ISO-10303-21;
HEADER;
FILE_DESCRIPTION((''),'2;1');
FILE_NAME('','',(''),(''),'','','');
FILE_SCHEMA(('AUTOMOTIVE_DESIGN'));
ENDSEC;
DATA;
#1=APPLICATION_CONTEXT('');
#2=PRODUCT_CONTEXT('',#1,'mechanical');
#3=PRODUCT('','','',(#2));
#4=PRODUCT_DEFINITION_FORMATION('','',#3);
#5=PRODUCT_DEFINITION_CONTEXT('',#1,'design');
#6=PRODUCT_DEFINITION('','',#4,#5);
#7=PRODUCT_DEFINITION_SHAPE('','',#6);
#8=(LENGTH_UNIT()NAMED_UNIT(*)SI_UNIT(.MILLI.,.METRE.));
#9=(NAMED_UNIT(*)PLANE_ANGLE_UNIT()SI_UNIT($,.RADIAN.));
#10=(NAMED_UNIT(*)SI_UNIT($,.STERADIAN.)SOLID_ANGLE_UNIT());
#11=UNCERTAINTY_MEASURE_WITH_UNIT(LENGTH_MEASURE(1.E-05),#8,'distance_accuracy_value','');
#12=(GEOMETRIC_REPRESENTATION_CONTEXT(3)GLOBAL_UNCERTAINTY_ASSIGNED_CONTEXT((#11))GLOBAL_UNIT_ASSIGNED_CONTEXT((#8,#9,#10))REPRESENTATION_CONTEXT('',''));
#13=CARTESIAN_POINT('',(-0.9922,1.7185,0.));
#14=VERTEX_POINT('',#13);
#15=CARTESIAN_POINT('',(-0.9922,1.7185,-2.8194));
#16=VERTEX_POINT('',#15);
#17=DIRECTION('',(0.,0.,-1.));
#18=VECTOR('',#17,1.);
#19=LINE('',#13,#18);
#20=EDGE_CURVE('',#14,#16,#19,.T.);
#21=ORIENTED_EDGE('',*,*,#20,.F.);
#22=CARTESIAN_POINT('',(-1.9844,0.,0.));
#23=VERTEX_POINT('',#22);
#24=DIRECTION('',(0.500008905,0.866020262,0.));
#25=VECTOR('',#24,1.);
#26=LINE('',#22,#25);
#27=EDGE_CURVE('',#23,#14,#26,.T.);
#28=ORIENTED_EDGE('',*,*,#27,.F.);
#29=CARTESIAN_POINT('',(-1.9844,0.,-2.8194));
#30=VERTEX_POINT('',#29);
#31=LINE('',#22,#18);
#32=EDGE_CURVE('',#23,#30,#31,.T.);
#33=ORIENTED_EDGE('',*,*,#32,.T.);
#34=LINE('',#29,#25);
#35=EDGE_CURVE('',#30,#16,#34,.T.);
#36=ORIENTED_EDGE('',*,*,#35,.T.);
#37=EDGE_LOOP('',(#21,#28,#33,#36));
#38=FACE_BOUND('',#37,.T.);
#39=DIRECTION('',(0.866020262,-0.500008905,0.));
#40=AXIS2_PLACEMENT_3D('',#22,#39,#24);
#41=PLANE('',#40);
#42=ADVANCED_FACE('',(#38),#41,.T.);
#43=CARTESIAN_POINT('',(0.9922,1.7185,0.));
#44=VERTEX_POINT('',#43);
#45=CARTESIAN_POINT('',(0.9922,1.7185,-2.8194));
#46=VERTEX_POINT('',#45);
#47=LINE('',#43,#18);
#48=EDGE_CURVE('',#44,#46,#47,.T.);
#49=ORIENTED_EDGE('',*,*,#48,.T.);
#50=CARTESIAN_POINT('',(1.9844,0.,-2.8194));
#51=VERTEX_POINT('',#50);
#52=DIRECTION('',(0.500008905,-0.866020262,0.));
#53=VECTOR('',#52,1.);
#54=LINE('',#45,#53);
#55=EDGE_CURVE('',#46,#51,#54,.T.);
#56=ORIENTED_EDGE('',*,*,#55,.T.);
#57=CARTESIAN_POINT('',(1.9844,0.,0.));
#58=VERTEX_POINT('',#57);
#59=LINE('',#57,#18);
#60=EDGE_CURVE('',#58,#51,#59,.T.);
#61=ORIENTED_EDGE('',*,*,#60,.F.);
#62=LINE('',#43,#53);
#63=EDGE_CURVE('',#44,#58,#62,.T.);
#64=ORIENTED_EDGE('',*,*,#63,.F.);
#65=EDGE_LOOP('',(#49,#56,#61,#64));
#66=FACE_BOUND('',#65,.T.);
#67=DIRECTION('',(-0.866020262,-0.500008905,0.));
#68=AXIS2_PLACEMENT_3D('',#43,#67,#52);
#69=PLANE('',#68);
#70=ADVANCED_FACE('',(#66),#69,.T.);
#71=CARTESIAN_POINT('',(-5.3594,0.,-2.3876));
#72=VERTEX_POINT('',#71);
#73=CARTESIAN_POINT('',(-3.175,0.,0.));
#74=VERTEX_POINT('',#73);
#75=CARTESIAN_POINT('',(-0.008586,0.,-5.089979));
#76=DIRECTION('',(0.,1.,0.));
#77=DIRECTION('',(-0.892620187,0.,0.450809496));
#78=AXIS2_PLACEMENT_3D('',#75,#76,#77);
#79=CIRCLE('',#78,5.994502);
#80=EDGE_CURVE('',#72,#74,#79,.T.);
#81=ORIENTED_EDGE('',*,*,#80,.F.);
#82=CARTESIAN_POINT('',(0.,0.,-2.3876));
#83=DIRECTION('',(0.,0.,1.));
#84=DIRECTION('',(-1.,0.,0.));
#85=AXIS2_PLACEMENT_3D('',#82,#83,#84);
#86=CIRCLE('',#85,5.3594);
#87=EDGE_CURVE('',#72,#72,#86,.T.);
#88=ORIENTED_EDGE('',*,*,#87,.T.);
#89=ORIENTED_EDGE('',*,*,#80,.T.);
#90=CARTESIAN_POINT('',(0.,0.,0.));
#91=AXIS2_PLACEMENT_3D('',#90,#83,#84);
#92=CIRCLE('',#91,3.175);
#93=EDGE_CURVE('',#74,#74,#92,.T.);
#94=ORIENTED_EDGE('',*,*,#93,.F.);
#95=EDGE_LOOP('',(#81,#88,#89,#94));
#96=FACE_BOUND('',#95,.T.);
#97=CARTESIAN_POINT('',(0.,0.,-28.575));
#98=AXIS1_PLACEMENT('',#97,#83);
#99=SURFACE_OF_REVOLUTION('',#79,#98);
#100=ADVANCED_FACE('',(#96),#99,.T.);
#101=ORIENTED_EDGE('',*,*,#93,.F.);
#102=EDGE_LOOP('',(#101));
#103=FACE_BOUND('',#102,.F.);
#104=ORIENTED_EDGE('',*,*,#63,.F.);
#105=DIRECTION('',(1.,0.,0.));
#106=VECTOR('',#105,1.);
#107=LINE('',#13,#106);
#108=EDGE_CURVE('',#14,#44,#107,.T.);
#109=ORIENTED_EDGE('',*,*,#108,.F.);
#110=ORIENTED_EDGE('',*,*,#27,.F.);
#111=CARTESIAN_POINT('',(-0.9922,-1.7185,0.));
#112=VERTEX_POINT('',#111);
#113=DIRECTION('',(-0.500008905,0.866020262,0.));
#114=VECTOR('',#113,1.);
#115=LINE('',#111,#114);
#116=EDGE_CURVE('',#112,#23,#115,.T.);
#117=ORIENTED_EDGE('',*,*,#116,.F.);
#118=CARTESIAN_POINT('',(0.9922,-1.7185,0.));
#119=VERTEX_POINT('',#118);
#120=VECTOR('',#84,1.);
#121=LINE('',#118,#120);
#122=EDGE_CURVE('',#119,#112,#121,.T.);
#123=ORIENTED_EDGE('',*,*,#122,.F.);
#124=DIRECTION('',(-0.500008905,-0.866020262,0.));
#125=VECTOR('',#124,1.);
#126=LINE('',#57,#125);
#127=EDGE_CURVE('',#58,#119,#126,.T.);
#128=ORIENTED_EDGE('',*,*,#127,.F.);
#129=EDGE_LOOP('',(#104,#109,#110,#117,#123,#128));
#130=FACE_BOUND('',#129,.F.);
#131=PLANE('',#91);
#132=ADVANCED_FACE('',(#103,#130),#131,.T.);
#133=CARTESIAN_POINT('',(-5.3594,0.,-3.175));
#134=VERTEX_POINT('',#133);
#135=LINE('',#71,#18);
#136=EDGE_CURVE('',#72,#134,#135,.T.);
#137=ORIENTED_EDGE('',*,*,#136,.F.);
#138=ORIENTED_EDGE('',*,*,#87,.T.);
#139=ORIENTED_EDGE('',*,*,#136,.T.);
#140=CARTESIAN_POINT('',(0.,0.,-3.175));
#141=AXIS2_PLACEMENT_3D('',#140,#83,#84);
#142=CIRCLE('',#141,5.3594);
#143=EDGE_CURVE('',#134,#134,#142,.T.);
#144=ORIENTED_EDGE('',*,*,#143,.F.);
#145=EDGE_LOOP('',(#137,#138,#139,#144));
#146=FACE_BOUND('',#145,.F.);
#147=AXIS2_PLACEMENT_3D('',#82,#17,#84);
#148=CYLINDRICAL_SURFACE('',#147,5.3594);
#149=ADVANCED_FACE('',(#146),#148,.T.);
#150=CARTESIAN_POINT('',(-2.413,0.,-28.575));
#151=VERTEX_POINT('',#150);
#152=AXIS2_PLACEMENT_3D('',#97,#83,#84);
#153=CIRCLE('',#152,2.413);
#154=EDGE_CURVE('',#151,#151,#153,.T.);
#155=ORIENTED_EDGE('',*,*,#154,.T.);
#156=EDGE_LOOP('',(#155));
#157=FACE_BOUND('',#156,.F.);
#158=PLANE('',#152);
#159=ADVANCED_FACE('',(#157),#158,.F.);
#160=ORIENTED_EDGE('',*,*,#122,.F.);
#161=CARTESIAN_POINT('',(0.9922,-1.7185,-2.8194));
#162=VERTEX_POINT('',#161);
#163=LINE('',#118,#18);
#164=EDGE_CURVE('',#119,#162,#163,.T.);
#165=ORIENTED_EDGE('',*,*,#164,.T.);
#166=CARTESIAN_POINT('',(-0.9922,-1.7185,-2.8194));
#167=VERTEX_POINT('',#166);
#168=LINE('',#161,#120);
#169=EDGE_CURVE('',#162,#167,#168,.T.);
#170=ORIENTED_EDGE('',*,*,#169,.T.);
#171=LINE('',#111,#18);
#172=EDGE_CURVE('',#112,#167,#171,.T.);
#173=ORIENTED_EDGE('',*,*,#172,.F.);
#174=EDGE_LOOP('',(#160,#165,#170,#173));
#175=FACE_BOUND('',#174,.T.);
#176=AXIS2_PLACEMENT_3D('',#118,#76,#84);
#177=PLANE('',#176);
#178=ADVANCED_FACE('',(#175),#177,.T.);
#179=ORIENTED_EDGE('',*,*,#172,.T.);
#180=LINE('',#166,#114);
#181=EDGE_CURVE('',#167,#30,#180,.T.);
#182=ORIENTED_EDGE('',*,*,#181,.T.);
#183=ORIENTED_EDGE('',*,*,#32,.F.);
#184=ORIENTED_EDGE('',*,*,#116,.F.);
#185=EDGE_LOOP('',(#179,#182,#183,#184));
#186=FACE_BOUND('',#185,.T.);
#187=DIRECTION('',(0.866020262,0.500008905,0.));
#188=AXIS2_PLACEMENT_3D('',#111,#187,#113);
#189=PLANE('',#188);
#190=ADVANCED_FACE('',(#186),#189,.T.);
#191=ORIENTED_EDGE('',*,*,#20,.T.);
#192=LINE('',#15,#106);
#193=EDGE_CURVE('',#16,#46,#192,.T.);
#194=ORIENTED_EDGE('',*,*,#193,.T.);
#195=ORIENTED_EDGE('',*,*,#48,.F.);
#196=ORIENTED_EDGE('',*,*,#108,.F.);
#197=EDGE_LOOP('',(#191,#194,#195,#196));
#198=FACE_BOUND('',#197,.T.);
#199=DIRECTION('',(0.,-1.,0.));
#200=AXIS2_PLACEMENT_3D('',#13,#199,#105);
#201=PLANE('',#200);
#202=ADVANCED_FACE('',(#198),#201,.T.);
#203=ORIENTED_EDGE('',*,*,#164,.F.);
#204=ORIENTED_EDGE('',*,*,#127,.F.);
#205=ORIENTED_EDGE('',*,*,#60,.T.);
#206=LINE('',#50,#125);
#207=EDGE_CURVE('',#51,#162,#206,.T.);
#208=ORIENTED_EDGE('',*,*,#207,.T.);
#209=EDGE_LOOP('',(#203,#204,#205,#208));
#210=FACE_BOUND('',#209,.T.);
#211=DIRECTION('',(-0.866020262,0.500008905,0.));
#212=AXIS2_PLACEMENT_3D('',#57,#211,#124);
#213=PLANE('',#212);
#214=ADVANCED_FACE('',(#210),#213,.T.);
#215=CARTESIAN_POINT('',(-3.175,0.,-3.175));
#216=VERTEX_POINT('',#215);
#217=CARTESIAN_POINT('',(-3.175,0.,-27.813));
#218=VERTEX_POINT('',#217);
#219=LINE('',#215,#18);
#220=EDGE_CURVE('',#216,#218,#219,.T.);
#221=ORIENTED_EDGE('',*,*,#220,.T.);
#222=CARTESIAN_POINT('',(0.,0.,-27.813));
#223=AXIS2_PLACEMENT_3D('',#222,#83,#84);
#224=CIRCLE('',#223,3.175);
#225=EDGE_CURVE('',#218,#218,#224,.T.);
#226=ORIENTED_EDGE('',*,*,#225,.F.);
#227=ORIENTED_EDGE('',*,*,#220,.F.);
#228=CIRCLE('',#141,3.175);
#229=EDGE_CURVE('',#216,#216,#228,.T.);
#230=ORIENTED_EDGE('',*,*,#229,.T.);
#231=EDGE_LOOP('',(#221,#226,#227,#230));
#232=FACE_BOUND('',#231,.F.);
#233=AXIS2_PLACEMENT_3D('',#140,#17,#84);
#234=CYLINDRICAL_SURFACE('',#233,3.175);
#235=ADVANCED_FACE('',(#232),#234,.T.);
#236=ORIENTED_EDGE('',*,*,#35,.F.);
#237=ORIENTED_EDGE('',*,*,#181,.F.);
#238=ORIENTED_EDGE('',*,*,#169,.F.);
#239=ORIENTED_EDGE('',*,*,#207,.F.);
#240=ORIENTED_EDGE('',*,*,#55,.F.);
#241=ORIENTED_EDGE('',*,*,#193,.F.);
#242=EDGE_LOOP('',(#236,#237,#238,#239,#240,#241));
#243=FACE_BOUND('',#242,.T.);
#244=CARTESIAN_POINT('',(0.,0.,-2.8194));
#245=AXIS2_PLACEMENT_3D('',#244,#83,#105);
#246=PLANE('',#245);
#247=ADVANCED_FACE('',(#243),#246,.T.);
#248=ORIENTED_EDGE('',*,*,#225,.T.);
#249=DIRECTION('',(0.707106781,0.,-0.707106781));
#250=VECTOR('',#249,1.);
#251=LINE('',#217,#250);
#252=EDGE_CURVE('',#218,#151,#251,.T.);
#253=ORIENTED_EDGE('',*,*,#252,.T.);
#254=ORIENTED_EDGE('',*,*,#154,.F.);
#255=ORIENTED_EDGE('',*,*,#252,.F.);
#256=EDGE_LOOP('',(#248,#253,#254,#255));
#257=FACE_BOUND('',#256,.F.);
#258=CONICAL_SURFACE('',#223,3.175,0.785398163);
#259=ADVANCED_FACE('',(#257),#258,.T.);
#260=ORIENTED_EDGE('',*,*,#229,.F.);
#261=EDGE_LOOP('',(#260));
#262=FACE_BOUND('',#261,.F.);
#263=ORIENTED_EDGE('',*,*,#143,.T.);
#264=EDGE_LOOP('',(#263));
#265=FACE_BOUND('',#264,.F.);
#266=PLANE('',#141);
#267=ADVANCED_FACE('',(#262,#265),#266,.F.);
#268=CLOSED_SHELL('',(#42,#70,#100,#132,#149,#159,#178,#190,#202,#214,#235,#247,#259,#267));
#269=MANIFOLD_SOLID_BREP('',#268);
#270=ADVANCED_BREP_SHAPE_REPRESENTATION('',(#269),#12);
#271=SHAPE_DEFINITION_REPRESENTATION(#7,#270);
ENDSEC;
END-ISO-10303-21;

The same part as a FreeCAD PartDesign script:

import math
import FreeCAD as App
import Part
import Sketcher

V = App.Vector
Q = App.Units.Quantity


def edges_at(feature, points):
    """Names of the edges that pass closest to the given points."""
    edges = feature.Shape.Edges
    near = lambda p: min(range(len(edges)), key=lambda i: edges[i].distToShape(Part.Vertex(*p))[0])
    return sorted({f"Edge{near(p) + 1}" for p in points})

doc = App.newDocument("Part")
params = doc.addObject("Spreadsheet::Sheet", "Params")
for row, (alias, value) in enumerate([
    ("sketch1_height", "1 in"),
    ("sketch1_radius", "0.236 in"),
    ("sketch1_width", "0.125 in"),
    ("sketch1_height2", "0.031 in"),
    ("revolution_angle", "360 deg"),
    ("chamfer_size", "0.03 in"),
    ("sketch2_width", "0.078126 in"),
    ("pocket1_length", "0.111 in"),
], start=1):
    params.set(f"A{row}", alias)
    params.set(f"B{row}", "=" + value)
    params.setAlias(f"B{row}", alias)

body = doc.addObject("PartDesign::Body", "Body")

sketch1 = doc.addObject("Sketcher::SketchObject", "Sketch")
body.addObject(sketch1)
sketch1.AttachmentSupport = (doc.XZ_Plane, [""])
sketch1.MapMode = "FlatFace"
sketch1.addGeometry(Part.LineSegment(V(-3.2, 0, 0), V(0, 0, 0)), False)
sketch1.addGeometry(Part.LineSegment(V(0, 0, 0), V(0, -28.6, 0)), False)
sketch1.addGeometry(Part.LineSegment(V(0, -28.6, 0), V(-3.2, -28.6, 0)), False)
sketch1.addGeometry(Part.LineSegment(V(-3.2, -28.6, 0), V(-3.2, -3.2, 0)), False)
sketch1.addGeometry(Part.LineSegment(V(-3.2, -3.2, 0), V(-5.4, -3.2, 0)), False)
sketch1.addGeometry(Part.LineSegment(V(-5.4, -3.2, 0), V(-5.4, -2.4, 0)), False)
sketch1.addGeometry(Part.ArcOfCircle(Part.Circle(V(0, -5.1, 0), V(0, 0, 1), 6), math.radians(122), math.radians(153)), False)
sketch1.addConstraint(Sketcher.Constraint("Coincident", 0, 2, 1, 1))
sketch1.addConstraint(Sketcher.Constraint("Coincident", 1, 2, 2, 1))
sketch1.addConstraint(Sketcher.Constraint("Coincident", 2, 2, 3, 1))
sketch1.addConstraint(Sketcher.Constraint("Coincident", 3, 2, 4, 1))
sketch1.addConstraint(Sketcher.Constraint("Coincident", 4, 2, 5, 1))
sketch1.addConstraint(Sketcher.Constraint("Coincident", 5, 2, 6, 2))
sketch1.addConstraint(Sketcher.Constraint("Coincident", 6, 1, 0, 1))
sketch1.addConstraint(Sketcher.Constraint("Horizontal", 0))
sketch1.addConstraint(Sketcher.Constraint("Vertical", 1))
sketch1.addConstraint(Sketcher.Constraint("Horizontal", 2))
sketch1.addConstraint(Sketcher.Constraint("Vertical", 3))
sketch1.addConstraint(Sketcher.Constraint("Horizontal", 4))
sketch1.addConstraint(Sketcher.Constraint("Vertical", 5))
sketch1.addConstraint(Sketcher.Constraint("Coincident", 0, 2, -1, 1))
sketch1.addConstraint(Sketcher.Constraint("Vertical", 3, 2, 6, 1))
sketch1.addConstraint(Sketcher.Constraint("DistanceY", 3, 1, 3, 2, Q("1 in")))
sketch1.addConstraint(Sketcher.Constraint("Radius", 6, Q("0.236 in")))
sketch1.addConstraint(Sketcher.Constraint("DistanceX", 0, 1, 0, 2, Q("0.125 in")))
sketch1.addConstraint(Sketcher.Constraint("DistanceY", 5, 1, 5, 2, Q("0.031 in")))
sketch1.addConstraint(Sketcher.Constraint("DistanceY", 3, 2, -1, 1, Q("0.125 in")))
sketch1.addConstraint(Sketcher.Constraint("DistanceX", 4, 2, -1, 1, Q("0.211 in")))
sketch1.setExpression("Constraints[15]", "Params.sketch1_height")
sketch1.setExpression("Constraints[16]", "Params.sketch1_radius")
sketch1.setExpression("Constraints[17]", "Params.sketch1_width")
sketch1.setExpression("Constraints[18]", "Params.sketch1_height2")
revolution = doc.addObject("PartDesign::Revolution", "Revolution")
body.addObject(revolution)
revolution.Profile = sketch1
revolution.ReferenceAxis = (sketch1, ["V_Axis"])
revolution.setExpression("Angle", "Params.revolution_angle")
doc.recompute()

chamfer = doc.addObject("PartDesign::Chamfer", "Chamfer")
body.addObject(chamfer)
chamfer.Base = (revolution, edges_at(revolution, [(3.175, 0, -28.575)]))
chamfer.setExpression("Size", "Params.chamfer_size")

sketch2 = doc.addObject("Sketcher::SketchObject", "Sketch001")
body.addObject(sketch2)
sketch2.AttachmentSupport = (doc.XY_Plane, [""])
sketch2.MapMode = "FlatFace"
sketch2.addGeometry(Part.LineSegment(V(1, -1.7, 0), V(2, 0, 0)), False)
sketch2.addGeometry(Part.LineSegment(V(2, 0, 0), V(1, 1.7, 0)), False)
sketch2.addGeometry(Part.LineSegment(V(1, 1.7, 0), V(-1, 1.7, 0)), False)
sketch2.addGeometry(Part.LineSegment(V(-1, 1.7, 0), V(-2, 0, 0)), False)
sketch2.addGeometry(Part.LineSegment(V(-2, 0, 0), V(-1, -1.7, 0)), False)
sketch2.addGeometry(Part.LineSegment(V(-1, -1.7, 0), V(1, -1.7, 0)), False)
sketch2.addConstraint(Sketcher.Constraint("Coincident", 0, 2, 1, 1))
sketch2.addConstraint(Sketcher.Constraint("Coincident", 1, 2, 2, 1))
sketch2.addConstraint(Sketcher.Constraint("Coincident", 2, 2, 3, 1))
sketch2.addConstraint(Sketcher.Constraint("Coincident", 3, 2, 4, 1))
sketch2.addConstraint(Sketcher.Constraint("Coincident", 4, 2, 5, 1))
sketch2.addConstraint(Sketcher.Constraint("Coincident", 5, 2, 0, 1))
sketch2.addConstraint(Sketcher.Constraint("Horizontal", 2))
sketch2.addConstraint(Sketcher.Constraint("Horizontal", 5))
sketch2.addConstraint(Sketcher.Constraint("Symmetric", 0, 2, 3, 2, -1, 1))
sketch2.addConstraint(Sketcher.Constraint("Symmetric", 1, 2, 4, 2, -1, 1))
sketch2.addConstraint(Sketcher.Constraint("PointOnObject", 0, 2, -1))
sketch2.addConstraint(Sketcher.Constraint("Parallel", 0, 3))
sketch2.addConstraint(Sketcher.Constraint("Vertical", 2, 2, 4, 2))
sketch2.addConstraint(Sketcher.Constraint("Angle", 0, Q("59.9994 deg")))
sketch2.addConstraint(Sketcher.Constraint("DistanceX", 3, 2, 0, 2, Q("0.156252 in")))
sketch2.addConstraint(Sketcher.Constraint("DistanceX", 2, 2, 2, 1, Q("0.078126 in")))
sketch2.setExpression("Constraints[15]", "Params.sketch2_width")
pocket1 = doc.addObject("PartDesign::Pocket", "Pocket")
body.addObject(pocket1)
pocket1.Profile = sketch2
pocket1.setExpression("Length", "Params.pocket1_length")

doc.recompute()
